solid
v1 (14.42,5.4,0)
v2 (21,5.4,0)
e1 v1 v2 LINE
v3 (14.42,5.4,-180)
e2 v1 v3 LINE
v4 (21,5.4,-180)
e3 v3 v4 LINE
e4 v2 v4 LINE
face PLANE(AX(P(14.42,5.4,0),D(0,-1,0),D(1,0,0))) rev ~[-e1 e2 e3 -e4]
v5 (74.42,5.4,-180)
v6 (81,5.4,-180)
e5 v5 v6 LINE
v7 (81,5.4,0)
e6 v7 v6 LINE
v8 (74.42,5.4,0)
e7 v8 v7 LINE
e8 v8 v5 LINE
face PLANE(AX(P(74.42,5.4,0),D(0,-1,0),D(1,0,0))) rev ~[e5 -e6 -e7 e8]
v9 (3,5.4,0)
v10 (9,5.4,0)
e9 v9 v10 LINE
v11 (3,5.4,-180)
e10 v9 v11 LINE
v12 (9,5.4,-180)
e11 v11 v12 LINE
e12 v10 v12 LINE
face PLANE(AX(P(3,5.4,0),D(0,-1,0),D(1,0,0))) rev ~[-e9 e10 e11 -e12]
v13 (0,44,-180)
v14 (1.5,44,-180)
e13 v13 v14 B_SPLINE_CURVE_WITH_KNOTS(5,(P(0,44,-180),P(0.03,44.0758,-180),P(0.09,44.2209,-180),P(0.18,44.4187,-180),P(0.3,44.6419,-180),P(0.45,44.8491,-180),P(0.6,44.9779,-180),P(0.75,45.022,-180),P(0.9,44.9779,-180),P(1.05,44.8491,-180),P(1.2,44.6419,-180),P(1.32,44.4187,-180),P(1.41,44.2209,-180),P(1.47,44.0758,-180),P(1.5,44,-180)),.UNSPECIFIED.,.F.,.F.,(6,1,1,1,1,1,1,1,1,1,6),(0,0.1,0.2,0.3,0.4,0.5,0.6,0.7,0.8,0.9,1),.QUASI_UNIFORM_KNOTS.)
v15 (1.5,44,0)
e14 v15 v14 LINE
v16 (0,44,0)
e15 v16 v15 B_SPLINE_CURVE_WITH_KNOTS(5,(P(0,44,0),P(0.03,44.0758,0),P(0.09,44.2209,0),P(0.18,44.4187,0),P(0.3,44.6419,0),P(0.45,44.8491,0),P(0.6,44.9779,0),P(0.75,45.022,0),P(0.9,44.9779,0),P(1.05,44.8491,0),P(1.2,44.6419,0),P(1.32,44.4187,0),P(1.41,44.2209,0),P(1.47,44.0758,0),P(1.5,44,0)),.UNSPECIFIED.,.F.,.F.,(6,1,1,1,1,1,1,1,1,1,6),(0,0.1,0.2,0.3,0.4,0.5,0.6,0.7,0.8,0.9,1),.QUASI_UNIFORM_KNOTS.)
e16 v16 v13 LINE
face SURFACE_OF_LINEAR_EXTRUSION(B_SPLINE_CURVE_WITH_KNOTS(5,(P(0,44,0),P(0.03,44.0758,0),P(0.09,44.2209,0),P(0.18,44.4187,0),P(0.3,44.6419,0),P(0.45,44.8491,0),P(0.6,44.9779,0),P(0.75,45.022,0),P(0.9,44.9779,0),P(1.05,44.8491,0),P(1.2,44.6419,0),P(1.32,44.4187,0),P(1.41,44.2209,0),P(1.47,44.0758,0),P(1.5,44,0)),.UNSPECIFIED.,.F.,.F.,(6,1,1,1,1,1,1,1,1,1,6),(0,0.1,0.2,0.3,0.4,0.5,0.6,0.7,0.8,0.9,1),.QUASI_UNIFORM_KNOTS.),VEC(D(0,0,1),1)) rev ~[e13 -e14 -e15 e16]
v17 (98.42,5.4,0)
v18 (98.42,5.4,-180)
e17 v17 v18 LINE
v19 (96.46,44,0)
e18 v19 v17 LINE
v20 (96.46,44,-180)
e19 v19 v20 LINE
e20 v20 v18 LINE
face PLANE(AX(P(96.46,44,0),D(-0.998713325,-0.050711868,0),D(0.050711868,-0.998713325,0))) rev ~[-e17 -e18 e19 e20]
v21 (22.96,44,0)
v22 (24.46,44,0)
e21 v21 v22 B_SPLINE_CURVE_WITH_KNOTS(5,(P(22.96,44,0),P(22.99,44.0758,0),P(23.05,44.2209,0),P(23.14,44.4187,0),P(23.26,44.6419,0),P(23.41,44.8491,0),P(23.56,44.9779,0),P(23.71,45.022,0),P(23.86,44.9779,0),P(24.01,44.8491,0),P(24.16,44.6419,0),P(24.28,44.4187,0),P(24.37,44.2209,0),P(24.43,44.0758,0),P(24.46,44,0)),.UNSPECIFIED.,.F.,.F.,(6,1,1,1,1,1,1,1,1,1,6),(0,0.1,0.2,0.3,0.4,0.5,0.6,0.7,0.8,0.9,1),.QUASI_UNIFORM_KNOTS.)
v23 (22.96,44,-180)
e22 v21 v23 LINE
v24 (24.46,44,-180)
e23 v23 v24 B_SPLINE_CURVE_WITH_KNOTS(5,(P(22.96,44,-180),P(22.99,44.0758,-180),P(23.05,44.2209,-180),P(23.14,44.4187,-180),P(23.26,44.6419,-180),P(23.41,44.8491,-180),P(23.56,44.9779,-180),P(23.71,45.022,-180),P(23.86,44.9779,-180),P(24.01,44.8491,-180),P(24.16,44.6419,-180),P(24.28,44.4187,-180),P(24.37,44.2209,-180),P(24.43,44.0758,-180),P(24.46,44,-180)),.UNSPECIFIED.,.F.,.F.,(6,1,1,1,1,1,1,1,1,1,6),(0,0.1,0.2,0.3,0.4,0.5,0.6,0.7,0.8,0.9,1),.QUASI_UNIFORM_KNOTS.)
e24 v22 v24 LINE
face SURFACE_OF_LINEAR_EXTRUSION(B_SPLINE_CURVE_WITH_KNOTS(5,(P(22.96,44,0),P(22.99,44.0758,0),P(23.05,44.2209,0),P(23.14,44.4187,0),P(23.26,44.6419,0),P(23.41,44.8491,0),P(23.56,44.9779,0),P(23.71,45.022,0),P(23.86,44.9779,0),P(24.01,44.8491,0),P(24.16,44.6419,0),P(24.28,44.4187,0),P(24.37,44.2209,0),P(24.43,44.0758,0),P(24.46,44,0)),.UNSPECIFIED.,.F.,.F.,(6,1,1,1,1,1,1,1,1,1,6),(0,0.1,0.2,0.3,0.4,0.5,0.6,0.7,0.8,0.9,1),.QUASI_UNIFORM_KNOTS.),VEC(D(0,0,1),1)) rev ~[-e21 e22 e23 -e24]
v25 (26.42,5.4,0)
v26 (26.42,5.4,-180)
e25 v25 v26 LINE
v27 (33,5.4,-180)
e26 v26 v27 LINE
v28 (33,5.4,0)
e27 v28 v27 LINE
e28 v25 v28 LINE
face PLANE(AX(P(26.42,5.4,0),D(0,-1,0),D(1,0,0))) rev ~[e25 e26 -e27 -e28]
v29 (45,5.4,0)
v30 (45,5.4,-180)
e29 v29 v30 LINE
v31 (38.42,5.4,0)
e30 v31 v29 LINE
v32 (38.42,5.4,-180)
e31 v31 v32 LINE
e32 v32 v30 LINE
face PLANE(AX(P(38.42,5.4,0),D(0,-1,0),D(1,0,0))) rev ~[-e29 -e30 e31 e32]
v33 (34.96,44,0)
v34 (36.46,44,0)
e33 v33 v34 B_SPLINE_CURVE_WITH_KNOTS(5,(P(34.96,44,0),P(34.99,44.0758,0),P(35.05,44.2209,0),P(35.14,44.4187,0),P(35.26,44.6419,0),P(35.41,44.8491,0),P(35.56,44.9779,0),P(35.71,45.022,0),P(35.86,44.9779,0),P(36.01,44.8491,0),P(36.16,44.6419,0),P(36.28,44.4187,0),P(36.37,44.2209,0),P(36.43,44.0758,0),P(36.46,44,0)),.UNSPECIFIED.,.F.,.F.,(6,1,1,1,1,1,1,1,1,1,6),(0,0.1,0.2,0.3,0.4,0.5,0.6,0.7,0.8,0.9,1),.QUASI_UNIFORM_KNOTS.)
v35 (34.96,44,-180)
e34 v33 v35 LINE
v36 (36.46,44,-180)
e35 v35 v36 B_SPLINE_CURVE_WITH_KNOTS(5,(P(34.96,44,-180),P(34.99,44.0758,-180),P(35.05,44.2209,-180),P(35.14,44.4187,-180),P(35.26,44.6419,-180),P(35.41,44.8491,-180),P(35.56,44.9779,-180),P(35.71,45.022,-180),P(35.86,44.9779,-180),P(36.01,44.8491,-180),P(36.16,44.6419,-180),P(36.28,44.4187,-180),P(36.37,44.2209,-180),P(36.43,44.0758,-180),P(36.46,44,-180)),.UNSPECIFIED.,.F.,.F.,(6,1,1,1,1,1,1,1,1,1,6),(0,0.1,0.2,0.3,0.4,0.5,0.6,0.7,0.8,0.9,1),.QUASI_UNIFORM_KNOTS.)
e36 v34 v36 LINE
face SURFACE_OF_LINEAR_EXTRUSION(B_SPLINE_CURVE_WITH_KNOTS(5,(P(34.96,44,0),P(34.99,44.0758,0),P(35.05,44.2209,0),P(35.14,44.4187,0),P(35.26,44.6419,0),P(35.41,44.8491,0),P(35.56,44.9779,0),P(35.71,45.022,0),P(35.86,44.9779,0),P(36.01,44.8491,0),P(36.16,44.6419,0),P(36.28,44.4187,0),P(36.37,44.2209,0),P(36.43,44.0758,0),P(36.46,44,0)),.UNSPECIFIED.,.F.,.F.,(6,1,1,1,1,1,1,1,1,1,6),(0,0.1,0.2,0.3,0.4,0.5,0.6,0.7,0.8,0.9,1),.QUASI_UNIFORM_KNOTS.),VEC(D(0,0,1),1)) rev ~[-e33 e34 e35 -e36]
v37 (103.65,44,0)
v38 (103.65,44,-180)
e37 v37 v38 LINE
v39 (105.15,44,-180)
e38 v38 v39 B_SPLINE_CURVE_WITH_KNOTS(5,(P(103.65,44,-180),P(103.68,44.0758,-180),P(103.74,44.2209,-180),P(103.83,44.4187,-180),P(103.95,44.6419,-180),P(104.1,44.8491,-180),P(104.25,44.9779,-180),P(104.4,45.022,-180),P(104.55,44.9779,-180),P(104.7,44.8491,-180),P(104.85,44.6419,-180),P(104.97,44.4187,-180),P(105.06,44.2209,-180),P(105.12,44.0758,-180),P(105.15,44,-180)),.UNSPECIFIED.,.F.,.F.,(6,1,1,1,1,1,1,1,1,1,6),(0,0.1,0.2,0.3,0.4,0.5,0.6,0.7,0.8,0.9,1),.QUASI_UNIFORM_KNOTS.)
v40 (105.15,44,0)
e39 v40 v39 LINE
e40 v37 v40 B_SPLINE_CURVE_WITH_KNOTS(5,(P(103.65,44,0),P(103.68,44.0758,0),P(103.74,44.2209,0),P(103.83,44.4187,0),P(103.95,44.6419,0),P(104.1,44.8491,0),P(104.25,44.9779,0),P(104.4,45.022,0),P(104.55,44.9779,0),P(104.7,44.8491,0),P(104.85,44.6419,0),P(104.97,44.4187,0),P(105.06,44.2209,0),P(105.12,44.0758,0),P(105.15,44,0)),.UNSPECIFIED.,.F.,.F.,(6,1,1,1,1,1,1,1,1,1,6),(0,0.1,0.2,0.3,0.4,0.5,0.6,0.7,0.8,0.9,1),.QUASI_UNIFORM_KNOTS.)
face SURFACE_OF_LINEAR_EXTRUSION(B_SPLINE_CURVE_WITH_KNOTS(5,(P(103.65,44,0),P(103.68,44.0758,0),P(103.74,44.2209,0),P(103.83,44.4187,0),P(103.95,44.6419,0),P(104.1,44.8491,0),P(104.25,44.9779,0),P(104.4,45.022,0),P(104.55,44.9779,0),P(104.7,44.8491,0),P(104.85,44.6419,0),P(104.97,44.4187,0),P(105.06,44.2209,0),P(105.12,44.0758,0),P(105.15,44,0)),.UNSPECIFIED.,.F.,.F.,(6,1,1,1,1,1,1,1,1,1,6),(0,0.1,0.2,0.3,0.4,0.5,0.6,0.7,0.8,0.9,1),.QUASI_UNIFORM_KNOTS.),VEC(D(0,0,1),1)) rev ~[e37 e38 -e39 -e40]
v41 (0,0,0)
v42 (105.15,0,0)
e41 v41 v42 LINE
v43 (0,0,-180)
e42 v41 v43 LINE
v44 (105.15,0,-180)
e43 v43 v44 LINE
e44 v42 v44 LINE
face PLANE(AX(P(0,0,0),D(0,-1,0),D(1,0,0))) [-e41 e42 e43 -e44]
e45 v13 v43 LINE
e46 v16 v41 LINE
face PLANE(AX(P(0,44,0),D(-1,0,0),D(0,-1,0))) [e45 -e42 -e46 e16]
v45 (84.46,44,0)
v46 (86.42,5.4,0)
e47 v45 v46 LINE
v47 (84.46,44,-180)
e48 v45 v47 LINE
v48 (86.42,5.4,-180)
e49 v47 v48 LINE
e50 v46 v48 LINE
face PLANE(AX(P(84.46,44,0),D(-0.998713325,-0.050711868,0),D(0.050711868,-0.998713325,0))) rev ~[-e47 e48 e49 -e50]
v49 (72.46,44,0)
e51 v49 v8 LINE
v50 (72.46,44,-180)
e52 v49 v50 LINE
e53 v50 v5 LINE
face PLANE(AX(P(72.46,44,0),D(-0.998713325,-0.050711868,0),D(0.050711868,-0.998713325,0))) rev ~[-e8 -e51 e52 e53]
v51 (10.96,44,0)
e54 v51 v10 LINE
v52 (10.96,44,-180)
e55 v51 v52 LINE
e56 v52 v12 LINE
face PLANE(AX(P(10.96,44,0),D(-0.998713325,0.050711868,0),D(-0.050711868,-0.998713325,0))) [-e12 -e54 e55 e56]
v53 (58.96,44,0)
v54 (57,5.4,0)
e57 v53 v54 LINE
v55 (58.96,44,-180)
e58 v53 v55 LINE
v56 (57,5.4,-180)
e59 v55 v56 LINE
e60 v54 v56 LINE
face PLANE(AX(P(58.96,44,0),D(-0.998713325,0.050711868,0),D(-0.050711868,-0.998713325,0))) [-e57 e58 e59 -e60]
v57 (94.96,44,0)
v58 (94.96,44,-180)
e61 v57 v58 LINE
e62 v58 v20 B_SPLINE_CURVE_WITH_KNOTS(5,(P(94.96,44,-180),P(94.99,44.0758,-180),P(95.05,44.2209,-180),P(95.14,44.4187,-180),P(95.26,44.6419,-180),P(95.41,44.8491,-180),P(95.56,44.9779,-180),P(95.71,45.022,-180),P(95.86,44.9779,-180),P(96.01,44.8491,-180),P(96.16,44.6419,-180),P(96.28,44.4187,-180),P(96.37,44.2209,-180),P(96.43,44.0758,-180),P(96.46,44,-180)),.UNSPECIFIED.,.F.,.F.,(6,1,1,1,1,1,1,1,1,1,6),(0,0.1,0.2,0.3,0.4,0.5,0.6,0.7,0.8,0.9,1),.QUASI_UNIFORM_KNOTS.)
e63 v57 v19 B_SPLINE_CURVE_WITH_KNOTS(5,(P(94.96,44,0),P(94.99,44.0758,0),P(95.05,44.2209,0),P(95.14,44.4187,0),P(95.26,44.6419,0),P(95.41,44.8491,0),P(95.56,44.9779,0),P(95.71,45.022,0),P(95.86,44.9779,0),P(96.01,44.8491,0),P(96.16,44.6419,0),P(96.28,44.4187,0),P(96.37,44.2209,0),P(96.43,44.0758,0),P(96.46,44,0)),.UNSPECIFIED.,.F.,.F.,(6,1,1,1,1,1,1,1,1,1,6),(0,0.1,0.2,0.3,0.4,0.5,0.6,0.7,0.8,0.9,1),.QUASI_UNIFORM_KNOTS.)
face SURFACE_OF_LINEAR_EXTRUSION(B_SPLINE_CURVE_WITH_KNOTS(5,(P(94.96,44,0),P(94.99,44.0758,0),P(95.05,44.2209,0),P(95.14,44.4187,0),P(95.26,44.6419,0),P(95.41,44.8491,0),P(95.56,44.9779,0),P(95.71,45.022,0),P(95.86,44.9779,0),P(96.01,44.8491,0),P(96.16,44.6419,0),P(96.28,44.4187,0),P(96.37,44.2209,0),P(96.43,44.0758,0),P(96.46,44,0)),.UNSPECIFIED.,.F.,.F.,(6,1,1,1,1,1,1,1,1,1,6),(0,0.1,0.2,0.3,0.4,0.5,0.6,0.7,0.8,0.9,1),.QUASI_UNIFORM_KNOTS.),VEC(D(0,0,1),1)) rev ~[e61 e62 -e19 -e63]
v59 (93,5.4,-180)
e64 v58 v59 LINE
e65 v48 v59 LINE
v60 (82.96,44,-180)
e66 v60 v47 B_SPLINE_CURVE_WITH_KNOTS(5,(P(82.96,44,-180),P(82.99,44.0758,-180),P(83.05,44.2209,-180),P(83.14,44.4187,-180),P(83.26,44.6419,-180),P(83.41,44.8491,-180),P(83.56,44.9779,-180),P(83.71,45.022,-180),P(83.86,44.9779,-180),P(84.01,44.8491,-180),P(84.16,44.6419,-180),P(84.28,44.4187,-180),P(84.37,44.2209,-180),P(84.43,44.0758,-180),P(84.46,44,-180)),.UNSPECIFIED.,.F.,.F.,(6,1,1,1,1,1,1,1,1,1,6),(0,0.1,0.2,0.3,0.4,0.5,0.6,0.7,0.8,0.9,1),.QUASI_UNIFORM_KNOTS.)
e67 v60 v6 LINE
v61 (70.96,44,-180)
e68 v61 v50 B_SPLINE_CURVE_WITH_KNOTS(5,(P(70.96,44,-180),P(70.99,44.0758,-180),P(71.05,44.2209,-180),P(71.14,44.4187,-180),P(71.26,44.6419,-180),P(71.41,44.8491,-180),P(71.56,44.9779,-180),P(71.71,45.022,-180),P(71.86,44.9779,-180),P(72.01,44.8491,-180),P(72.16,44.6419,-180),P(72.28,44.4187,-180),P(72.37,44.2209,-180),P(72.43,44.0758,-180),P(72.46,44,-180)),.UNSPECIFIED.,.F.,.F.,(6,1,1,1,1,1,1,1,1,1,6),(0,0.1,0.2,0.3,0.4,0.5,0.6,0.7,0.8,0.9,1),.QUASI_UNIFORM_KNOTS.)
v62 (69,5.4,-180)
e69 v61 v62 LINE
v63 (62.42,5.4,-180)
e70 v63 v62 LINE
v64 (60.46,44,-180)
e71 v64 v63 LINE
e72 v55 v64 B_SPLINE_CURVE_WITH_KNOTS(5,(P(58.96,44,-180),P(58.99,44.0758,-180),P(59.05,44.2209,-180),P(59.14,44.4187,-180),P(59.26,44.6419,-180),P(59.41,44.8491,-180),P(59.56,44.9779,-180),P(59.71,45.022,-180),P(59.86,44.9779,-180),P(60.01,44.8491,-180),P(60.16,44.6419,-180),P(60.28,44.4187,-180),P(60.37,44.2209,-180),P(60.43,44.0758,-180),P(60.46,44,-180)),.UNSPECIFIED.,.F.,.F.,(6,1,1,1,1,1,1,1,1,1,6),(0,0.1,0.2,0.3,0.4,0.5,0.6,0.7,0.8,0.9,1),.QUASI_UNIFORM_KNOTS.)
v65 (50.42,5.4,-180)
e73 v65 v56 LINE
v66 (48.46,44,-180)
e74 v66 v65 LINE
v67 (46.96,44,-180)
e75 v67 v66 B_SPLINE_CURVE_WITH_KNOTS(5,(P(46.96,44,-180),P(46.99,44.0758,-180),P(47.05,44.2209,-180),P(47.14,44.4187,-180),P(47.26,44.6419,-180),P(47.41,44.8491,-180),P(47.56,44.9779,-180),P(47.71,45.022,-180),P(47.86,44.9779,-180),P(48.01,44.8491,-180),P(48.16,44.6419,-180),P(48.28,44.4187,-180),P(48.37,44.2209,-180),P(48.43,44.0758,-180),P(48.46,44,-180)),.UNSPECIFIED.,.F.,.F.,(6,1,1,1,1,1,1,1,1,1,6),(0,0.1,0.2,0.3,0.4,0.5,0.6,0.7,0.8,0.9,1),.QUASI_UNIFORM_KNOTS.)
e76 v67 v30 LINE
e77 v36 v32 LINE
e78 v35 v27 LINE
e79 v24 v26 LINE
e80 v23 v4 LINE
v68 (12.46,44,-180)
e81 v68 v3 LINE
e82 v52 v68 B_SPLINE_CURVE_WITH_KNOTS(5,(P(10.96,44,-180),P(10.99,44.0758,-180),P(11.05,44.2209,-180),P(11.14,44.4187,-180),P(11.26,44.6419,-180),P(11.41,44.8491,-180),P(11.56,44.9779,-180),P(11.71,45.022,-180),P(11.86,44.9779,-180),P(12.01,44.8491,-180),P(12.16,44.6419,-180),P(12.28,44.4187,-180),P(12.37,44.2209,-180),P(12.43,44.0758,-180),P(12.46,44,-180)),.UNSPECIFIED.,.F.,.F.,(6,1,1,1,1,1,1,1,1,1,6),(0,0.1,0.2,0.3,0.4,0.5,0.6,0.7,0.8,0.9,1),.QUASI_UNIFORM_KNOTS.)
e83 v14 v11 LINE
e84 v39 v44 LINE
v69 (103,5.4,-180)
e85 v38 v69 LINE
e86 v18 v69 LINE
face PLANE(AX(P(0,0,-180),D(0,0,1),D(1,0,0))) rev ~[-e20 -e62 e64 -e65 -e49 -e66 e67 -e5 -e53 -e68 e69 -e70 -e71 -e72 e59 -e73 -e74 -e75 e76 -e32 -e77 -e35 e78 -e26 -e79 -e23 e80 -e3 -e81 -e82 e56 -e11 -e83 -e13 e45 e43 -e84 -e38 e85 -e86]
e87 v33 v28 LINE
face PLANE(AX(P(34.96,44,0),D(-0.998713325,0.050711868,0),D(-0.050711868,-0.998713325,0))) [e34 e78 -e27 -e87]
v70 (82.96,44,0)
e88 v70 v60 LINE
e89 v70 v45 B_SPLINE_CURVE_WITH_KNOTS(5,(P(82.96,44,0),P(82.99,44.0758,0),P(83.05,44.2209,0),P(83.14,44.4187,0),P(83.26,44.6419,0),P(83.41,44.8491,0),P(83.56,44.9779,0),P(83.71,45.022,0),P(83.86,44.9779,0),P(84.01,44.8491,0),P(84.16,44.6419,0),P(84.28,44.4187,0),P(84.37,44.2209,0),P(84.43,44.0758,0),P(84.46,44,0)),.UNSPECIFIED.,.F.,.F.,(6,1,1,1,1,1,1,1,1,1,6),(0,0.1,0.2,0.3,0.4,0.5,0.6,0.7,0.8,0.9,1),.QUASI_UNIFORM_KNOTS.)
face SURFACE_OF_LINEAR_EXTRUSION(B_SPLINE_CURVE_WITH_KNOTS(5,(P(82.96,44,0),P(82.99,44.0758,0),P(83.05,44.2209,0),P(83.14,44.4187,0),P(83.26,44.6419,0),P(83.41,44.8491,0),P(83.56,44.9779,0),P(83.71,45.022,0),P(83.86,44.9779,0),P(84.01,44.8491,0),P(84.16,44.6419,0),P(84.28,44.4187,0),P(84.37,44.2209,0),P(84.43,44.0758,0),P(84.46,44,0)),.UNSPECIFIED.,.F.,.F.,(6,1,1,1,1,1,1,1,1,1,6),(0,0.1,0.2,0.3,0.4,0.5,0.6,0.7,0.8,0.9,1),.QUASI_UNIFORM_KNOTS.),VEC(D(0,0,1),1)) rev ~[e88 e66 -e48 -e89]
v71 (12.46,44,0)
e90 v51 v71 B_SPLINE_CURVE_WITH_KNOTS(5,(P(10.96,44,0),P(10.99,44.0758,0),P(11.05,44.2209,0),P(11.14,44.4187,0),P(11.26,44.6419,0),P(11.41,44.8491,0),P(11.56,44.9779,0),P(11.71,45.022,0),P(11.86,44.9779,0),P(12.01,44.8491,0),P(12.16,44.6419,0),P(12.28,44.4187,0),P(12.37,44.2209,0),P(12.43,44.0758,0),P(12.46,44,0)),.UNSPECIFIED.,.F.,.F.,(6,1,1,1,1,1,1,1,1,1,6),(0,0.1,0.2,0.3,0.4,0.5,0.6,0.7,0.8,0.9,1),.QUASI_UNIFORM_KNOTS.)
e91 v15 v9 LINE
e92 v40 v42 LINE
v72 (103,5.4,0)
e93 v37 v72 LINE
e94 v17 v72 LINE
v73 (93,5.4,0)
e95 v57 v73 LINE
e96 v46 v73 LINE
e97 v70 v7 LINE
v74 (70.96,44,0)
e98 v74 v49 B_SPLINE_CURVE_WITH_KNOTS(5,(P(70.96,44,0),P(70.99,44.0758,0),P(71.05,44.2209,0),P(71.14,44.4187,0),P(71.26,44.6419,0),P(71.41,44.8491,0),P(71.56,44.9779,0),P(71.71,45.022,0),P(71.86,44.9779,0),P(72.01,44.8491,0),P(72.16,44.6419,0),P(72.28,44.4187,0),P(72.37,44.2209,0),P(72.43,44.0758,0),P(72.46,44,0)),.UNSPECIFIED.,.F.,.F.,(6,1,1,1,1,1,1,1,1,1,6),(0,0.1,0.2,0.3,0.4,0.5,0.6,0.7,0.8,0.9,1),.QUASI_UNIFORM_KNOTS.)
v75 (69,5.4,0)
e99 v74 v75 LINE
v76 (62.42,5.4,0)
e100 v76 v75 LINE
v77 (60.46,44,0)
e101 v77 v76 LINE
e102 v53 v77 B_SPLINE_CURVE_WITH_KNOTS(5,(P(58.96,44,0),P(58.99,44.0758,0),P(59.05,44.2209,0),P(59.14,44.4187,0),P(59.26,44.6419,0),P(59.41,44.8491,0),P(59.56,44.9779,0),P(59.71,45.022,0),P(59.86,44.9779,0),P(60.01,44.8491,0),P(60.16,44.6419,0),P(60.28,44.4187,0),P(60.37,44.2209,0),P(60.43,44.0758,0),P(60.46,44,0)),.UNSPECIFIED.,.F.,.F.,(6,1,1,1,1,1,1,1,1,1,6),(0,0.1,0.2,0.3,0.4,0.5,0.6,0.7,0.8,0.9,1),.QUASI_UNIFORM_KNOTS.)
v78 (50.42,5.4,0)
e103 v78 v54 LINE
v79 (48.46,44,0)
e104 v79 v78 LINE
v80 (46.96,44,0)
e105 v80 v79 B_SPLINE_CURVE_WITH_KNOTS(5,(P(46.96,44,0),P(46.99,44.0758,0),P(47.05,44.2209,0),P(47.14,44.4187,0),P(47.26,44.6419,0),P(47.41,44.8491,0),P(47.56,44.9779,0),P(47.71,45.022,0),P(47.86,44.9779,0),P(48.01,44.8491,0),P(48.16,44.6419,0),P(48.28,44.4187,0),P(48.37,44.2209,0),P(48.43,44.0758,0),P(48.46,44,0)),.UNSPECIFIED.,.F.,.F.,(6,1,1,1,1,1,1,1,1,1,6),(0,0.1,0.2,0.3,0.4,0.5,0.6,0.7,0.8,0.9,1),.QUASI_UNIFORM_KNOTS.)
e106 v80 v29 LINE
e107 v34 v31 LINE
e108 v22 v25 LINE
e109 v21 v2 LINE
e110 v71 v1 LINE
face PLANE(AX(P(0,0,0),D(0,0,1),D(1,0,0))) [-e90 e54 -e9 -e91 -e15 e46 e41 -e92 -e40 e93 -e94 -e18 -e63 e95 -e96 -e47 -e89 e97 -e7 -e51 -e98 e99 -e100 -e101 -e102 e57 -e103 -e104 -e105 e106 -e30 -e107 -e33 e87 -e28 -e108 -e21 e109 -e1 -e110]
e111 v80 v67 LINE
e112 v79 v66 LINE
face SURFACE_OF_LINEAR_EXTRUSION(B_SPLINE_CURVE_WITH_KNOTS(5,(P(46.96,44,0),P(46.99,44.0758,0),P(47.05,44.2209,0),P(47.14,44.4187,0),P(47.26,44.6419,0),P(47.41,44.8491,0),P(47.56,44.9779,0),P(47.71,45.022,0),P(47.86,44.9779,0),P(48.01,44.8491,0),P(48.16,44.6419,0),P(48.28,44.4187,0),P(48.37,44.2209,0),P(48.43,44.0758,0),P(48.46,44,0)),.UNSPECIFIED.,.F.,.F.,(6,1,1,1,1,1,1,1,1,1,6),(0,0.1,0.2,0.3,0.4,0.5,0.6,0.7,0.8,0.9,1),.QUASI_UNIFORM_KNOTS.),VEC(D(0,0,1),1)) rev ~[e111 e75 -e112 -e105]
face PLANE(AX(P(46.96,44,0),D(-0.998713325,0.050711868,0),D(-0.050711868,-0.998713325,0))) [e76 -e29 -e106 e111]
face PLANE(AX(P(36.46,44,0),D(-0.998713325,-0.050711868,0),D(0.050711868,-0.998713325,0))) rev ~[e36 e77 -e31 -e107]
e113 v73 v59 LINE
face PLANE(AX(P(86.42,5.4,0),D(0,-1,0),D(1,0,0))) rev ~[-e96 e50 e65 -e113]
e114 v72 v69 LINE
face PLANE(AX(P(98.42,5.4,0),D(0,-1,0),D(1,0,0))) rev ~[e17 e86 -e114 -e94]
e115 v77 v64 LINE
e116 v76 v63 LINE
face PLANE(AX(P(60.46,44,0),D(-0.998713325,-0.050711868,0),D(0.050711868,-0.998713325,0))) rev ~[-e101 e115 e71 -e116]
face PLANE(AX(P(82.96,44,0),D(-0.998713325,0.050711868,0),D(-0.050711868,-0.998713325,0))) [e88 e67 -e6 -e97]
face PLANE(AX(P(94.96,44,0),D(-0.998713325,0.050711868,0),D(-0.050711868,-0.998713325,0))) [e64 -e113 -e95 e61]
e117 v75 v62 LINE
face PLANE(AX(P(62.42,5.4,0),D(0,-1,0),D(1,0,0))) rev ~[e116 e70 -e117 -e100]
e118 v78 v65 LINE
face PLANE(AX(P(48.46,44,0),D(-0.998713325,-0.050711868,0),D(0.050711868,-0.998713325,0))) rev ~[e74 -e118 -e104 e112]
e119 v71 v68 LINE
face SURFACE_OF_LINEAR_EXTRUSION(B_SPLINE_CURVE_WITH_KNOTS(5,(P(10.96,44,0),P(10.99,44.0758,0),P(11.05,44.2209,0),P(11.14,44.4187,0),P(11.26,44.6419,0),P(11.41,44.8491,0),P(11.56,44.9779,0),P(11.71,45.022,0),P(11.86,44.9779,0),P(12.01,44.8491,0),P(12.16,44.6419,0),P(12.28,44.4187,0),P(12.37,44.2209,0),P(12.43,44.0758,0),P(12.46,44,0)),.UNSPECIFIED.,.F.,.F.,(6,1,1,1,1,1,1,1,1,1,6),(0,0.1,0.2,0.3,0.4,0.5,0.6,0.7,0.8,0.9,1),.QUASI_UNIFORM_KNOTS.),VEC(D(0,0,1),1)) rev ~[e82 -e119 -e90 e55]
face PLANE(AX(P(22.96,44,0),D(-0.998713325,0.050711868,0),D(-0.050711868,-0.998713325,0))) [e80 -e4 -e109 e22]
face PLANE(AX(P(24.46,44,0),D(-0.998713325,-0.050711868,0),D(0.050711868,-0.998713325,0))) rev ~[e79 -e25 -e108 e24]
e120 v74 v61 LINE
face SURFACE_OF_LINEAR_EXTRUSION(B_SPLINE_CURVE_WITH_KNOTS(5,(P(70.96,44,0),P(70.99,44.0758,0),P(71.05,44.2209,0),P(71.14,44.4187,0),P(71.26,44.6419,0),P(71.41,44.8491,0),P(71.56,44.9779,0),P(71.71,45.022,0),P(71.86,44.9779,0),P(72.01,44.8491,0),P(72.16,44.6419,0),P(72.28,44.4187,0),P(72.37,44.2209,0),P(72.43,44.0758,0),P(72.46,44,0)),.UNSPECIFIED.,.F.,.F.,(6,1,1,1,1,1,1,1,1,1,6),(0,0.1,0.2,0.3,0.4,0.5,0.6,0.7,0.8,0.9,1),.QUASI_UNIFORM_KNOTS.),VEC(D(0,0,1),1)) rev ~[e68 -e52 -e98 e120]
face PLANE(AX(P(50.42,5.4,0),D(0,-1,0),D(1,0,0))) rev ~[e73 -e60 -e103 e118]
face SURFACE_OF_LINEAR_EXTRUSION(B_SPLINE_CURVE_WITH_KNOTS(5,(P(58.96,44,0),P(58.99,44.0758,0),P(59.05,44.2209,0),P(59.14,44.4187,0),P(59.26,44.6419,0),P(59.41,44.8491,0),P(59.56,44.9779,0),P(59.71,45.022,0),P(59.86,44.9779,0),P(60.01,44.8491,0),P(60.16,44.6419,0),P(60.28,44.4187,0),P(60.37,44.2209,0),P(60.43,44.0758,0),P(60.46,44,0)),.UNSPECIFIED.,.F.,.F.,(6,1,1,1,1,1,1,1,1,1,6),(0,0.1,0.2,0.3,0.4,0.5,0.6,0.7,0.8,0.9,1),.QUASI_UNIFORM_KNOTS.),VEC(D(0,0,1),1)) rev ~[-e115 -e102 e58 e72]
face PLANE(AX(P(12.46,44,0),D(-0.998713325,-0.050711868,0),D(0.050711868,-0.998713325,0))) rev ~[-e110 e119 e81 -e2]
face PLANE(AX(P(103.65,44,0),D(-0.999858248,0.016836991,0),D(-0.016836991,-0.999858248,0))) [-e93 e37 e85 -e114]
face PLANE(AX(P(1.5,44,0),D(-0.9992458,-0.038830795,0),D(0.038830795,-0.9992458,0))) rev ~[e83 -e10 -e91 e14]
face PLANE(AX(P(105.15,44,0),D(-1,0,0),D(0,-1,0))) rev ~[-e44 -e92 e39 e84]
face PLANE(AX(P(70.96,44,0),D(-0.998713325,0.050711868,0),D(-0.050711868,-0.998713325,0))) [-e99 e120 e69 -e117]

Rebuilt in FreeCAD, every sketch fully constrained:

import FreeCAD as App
import Part
import Sketcher
from FreeCAD import Vector

doc = App.newDocument("Part")
params = doc.addObject("Spreadsheet::Sheet", "Params")
for row, (alias, value) in enumerate([
    ("sketch1_width", "6 mm"),
    ("sketch1_width2", "4.58 mm"),
    ("pad1_length", "180 mm"),
], start=1):
    params.set(f"A{row}", alias)
    params.set(f"B{row}", "=" + value)
    params.setAlias(f"B{row}", alias)

body = doc.addObject("PartDesign::Body", "Body")

# Sketch on XY plane
sketch1 = doc.addObject("Sketcher::SketchObject", "Sketch")
body.addObject(sketch1)
sketch1.AttachmentSupport = (doc.XY_Plane, [""])
sketch1.MapMode = "FlatFace"
sketch1.addGeometry(Part.LineSegment(Vector(0, 44, 0), Vector(0, 0, 0)), False)
sketch1.addGeometry(Part.LineSegment(Vector(0, 0, 0), Vector(105.15, 0, 0)), False)
sketch1.addGeometry(Part.LineSegment(Vector(105.15, 0, 0), Vector(105.15, 44, 0)), False)
sketch1.addGeometry(Part.BSplineCurve([Vector(103.65, 44, 0), Vector(103.68, 44.0758, 0), Vector(103.74, 44.2209, 0), Vector(103.83, 44.4187, 0), Vector(103.95, 44.6419, 0), Vector(104.1, 44.8491, 0), Vector(104.25, 44.9779, 0), Vector(104.4, 45.022, 0), Vector(104.55, 44.9779, 0), Vector(104.7, 44.8491, 0), Vector(104.85, 44.6419, 0), Vector(104.97, 44.4187, 0), Vector(105.06, 44.2209, 0), Vector(105.12, 44.0758, 0), Vector(105.15, 44, 0)], [6, 1, 1, 1, 1, 1, 1, 1, 1, 1, 6], [0, 0.1, 0.2, 0.3, 0.4, 0.5, 0.6, 0.7, 0.8, 0.9, 1], False, 5, [1, 1, 1, 1, 1, 1, 1, 1, 1, 1, 1, 1, 1, 1, 1], False), False)
sketch1.addGeometry(Part.LineSegment(Vector(103.65, 44, 0), Vector(103, 5.4, 0)), False)
sketch1.addGeometry(Part.LineSegment(Vector(103, 5.4, 0), Vector(98.42, 5.4, 0)), False)
sketch1.addGeometry(Part.LineSegment(Vector(98.42, 5.4, 0), Vector(96.46, 44, 0)), False)
sketch1.addGeometry(Part.BSplineCurve([Vector(94.96, 44, 0), Vector(94.99, 44.0758, 0), Vector(95.05, 44.2209, 0), Vector(95.14, 44.4187, 0), Vector(95.26, 44.6419, 0), Vector(95.41, 44.8491, 0), Vector(95.56, 44.9779, 0), Vector(95.71, 45.022, 0), Vector(95.86, 44.9779, 0), Vector(96.01, 44.8491, 0), Vector(96.16, 44.6419, 0), Vector(96.28, 44.4187, 0), Vector(96.37, 44.2209, 0), Vector(96.43, 44.0758, 0), Vector(96.46, 44, 0)], [6, 1, 1, 1, 1, 1, 1, 1, 1, 1, 6], [0, 0.1, 0.2, 0.3, 0.4, 0.5, 0.6, 0.7, 0.8, 0.9, 1], False, 5, [1, 1, 1, 1, 1, 1, 1, 1, 1, 1, 1, 1, 1, 1, 1], False), False)
sketch1.addGeometry(Part.LineSegment(Vector(94.96, 44, 0), Vector(93, 5.4, 0)), False)
sketch1.addGeometry(Part.LineSegment(Vector(93, 5.4, 0), Vector(86.42, 5.4, 0)), False)
sketch1.addGeometry(Part.LineSegment(Vector(86.42, 5.4, 0), Vector(84.46, 44, 0)), False)
sketch1.addGeometry(Part.BSplineCurve([Vector(82.96, 44, 0), Vector(82.99, 44.0758, 0), Vector(83.05, 44.2209, 0), Vector(83.14, 44.4187, 0), Vector(83.26, 44.6419, 0), Vector(83.41, 44.8491, 0), Vector(83.56, 44.9779, 0), Vector(83.71, 45.022, 0), Vector(83.86, 44.9779, 0), Vector(84.01, 44.8491, 0), Vector(84.16, 44.6419, 0), Vector(84.28, 44.4187, 0), Vector(84.37, 44.2209, 0), Vector(84.43, 44.0758, 0), Vector(84.46, 44, 0)], [6, 1, 1, 1, 1, 1, 1, 1, 1, 1, 6], [0, 0.1, 0.2, 0.3, 0.4, 0.5, 0.6, 0.7, 0.8, 0.9, 1], False, 5, [1, 1, 1, 1, 1, 1, 1, 1, 1, 1, 1, 1, 1, 1, 1], False), False)
sketch1.addGeometry(Part.LineSegment(Vector(82.96, 44, 0), Vector(81, 5.4, 0)), False)
sketch1.addGeometry(Part.LineSegment(Vector(81, 5.4, 0), Vector(74.42, 5.4, 0)), False)
sketch1.addGeometry(Part.LineSegment(Vector(74.42, 5.4, 0), Vector(72.46, 44, 0)), False)
sketch1.addGeometry(Part.BSplineCurve([Vector(70.96, 44, 0), Vector(70.99, 44.0758, 0), Vector(71.05, 44.2209, 0), Vector(71.14, 44.4187, 0), Vector(71.26, 44.6419, 0), Vector(71.41, 44.8491, 0), Vector(71.56, 44.9779, 0), Vector(71.71, 45.022, 0), Vector(71.86, 44.9779, 0), Vector(72.01, 44.8491, 0), Vector(72.16, 44.6419, 0), Vector(72.28, 44.4187, 0), Vector(72.37, 44.2209, 0), Vector(72.43, 44.0758, 0), Vector(72.46, 44, 0)], [6, 1, 1, 1, 1, 1, 1, 1, 1, 1, 6], [0, 0.1, 0.2, 0.3, 0.4, 0.5, 0.6, 0.7, 0.8, 0.9, 1], False, 5, [1, 1, 1, 1, 1, 1, 1, 1, 1, 1, 1, 1, 1, 1, 1], False), False)
sketch1.addGeometry(Part.LineSegment(Vector(70.96, 44, 0), Vector(69, 5.4, 0)), False)
sketch1.addGeometry(Part.LineSegment(Vector(69, 5.4, 0), Vector(62.42, 5.4, 0)), False)
sketch1.addGeometry(Part.LineSegment(Vector(62.42, 5.4, 0), Vector(60.46, 44, 0)), False)
sketch1.addGeometry(Part.BSplineCurve([Vector(58.96, 44, 0), Vector(58.99, 44.0758, 0), Vector(59.05, 44.2209, 0), Vector(59.14, 44.4187, 0), Vector(59.26, 44.6419, 0), Vector(59.41, 44.8491, 0), Vector(59.56, 44.9779, 0), Vector(59.71, 45.022, 0), Vector(59.86, 44.9779, 0), Vector(60.01, 44.8491, 0), Vector(60.16, 44.6419, 0), Vector(60.28, 44.4187, 0), Vector(60.37, 44.2209, 0), Vector(60.43, 44.0758, 0), Vector(60.46, 44, 0)], [6, 1, 1, 1, 1, 1, 1, 1, 1, 1, 6], [0, 0.1, 0.2, 0.3, 0.4, 0.5, 0.6, 0.7, 0.8, 0.9, 1], False, 5, [1, 1, 1, 1, 1, 1, 1, 1, 1, 1, 1, 1, 1, 1, 1], False), False)
sketch1.addGeometry(Part.LineSegment(Vector(58.96, 44, 0), Vector(57, 5.4, 0)), False)
sketch1.addGeometry(Part.LineSegment(Vector(57, 5.4, 0), Vector(50.42, 5.4, 0)), False)
sketch1.addGeometry(Part.LineSegment(Vector(50.42, 5.4, 0), Vector(48.46, 44, 0)), False)
sketch1.addGeometry(Part.BSplineCurve([Vector(46.96, 44, 0), Vector(46.99, 44.0758, 0), Vector(47.05, 44.2209, 0), Vector(47.14, 44.4187, 0), Vector(47.26, 44.6419, 0), Vector(47.41, 44.8491, 0), Vector(47.56, 44.9779, 0), Vector(47.71, 45.022, 0), Vector(47.86, 44.9779, 0), Vector(48.01, 44.8491, 0), Vector(48.16, 44.6419, 0), Vector(48.28, 44.4187, 0), Vector(48.37, 44.2209, 0), Vector(48.43, 44.0758, 0), Vector(48.46, 44, 0)], [6, 1, 1, 1, 1, 1, 1, 1, 1, 1, 6], [0, 0.1, 0.2, 0.3, 0.4, 0.5, 0.6, 0.7, 0.8, 0.9, 1], False, 5, [1, 1, 1, 1, 1, 1, 1, 1, 1, 1, 1, 1, 1, 1, 1], False), False)
sketch1.addGeometry(Part.LineSegment(Vector(46.96, 44, 0), Vector(45, 5.4, 0)), False)
sketch1.addGeometry(Part.LineSegment(Vector(45, 5.4, 0), Vector(38.42, 5.4, 0)), False)
sketch1.addGeometry(Part.LineSegment(Vector(38.42, 5.4, 0), Vector(36.46, 44, 0)), False)
sketch1.addGeometry(Part.BSplineCurve([Vector(34.96, 44, 0), Vector(34.99, 44.0758, 0), Vector(35.05, 44.2209, 0), Vector(35.14, 44.4187, 0), Vector(35.26, 44.6419, 0), Vector(35.41, 44.8491, 0), Vector(35.56, 44.9779, 0), Vector(35.71, 45.022, 0), Vector(35.86, 44.9779, 0), Vector(36.01, 44.8491, 0), Vector(36.16, 44.6419, 0), Vector(36.28, 44.4187, 0), Vector(36.37, 44.2209, 0), Vector(36.43, 44.0758, 0), Vector(36.46, 44, 0)], [6, 1, 1, 1, 1, 1, 1, 1, 1, 1, 6], [0, 0.1, 0.2, 0.3, 0.4, 0.5, 0.6, 0.7, 0.8, 0.9, 1], False, 5, [1, 1, 1, 1, 1, 1, 1, 1, 1, 1, 1, 1, 1, 1, 1], False), False)
sketch1.addGeometry(Part.LineSegment(Vector(34.96, 44, 0), Vector(33, 5.4, 0)), False)
sketch1.addGeometry(Part.LineSegment(Vector(33, 5.4, 0), Vector(26.42, 5.4, 0)), False)
sketch1.addGeometry(Part.LineSegment(Vector(26.42, 5.4, 0), Vector(24.46, 44, 0)), False)
sketch1.addGeometry(Part.BSplineCurve([Vector(22.96, 44, 0), Vector(22.99, 44.0758, 0), Vector(23.05, 44.2209, 0), Vector(23.14, 44.4187, 0), Vector(23.26, 44.6419, 0), Vector(23.41, 44.8491, 0), Vector(23.56, 44.9779, 0), Vector(23.71, 45.022, 0), Vector(23.86, 44.9779, 0), Vector(24.01, 44.8491, 0), Vector(24.16, 44.6419, 0), Vector(24.28, 44.4187, 0), Vector(24.37, 44.2209, 0), Vector(24.43, 44.0758, 0), Vector(24.46, 44, 0)], [6, 1, 1, 1, 1, 1, 1, 1, 1, 1, 6], [0, 0.1, 0.2, 0.3, 0.4, 0.5, 0.6, 0.7, 0.8, 0.9, 1], False, 5, [1, 1, 1, 1, 1, 1, 1, 1, 1, 1, 1, 1, 1, 1, 1], False), False)
sketch1.addGeometry(Part.LineSegment(Vector(22.96, 44, 0), Vector(21, 5.4, 0)), False)
sketch1.addGeometry(Part.LineSegment(Vector(21, 5.4, 0), Vector(14.42, 5.4, 0)), False)
sketch1.addGeometry(Part.LineSegment(Vector(14.42, 5.4, 0), Vector(12.46, 44, 0)), False)
sketch1.addGeometry(Part.BSplineCurve([Vector(10.96, 44, 0), Vector(10.99, 44.0758, 0), Vector(11.05, 44.2209, 0), Vector(11.14, 44.4187, 0), Vector(11.26, 44.6419, 0), Vector(11.41, 44.8491, 0), Vector(11.56, 44.9779, 0), Vector(11.71, 45.022, 0), Vector(11.86, 44.9779, 0), Vector(12.01, 44.8491, 0), Vector(12.16, 44.6419, 0), Vector(12.28, 44.4187, 0), Vector(12.37, 44.2209, 0), Vector(12.43, 44.0758, 0), Vector(12.46, 44, 0)], [6, 1, 1, 1, 1, 1, 1, 1, 1, 1, 6], [0, 0.1, 0.2, 0.3, 0.4, 0.5, 0.6, 0.7, 0.8, 0.9, 1], False, 5, [1, 1, 1, 1, 1, 1, 1, 1, 1, 1, 1, 1, 1, 1, 1], False), False)
sketch1.addGeometry(Part.LineSegment(Vector(10.96, 44, 0), Vector(9, 5.4, 0)), False)
sketch1.addGeometry(Part.LineSegment(Vector(9, 5.4, 0), Vector(3, 5.4, 0)), False)
sketch1.addGeometry(Part.LineSegment(Vector(3, 5.4, 0), Vector(1.5, 44, 0)), False)
sketch1.addGeometry(Part.BSplineCurve([Vector(0, 44, 0), Vector(0.03, 44.0758, 0), Vector(0.09, 44.2209, 0), Vector(0.18, 44.4187, 0), Vector(0.3, 44.6419, 0), Vector(0.45, 44.8491, 0), Vector(0.6, 44.9779, 0), Vector(0.75, 45.022, 0), Vector(0.9, 44.9779, 0), Vector(1.05, 44.8491, 0), Vector(1.2, 44.6419, 0), Vector(1.32, 44.4187, 0), Vector(1.41, 44.2209, 0), Vector(1.47, 44.0758, 0), Vector(1.5, 44, 0)], [6, 1, 1, 1, 1, 1, 1, 1, 1, 1, 6], [0, 0.1, 0.2, 0.3, 0.4, 0.5, 0.6, 0.7, 0.8, 0.9, 1], False, 5, [1, 1, 1, 1, 1, 1, 1, 1, 1, 1, 1, 1, 1, 1, 1], False), False)
sketch1.addConstraint(Sketcher.Constraint("Block", 3))
sketch1.addConstraint(Sketcher.Constraint("Block", 7))
sketch1.addConstraint(Sketcher.Constraint("Block", 11))
sketch1.addConstraint(Sketcher.Constraint("Block", 15))
sketch1.addConstraint(Sketcher.Constraint("Block", 19))
sketch1.addConstraint(Sketcher.Constraint("Block", 23))
sketch1.addConstraint(Sketcher.Constraint("Block", 27))
sketch1.addConstraint(Sketcher.Constraint("Block", 31))
sketch1.addConstraint(Sketcher.Constraint("Block", 35))
sketch1.addConstraint(Sketcher.Constraint("Block", 39))
sketch1.addConstraint(Sketcher.Constraint("Coincident", 0, 2, 1, 1))
sketch1.addConstraint(Sketcher.Constraint("Coincident", 1, 2, 2, 1))
sketch1.addConstraint(Sketcher.Constraint("Coincident", 2, 2, 3, 2))
sketch1.addConstraint(Sketcher.Constraint("Coincident", 3, 1, 4, 1))
sketch1.addConstraint(Sketcher.Constraint("Coincident", 4, 2, 5, 1))
sketch1.addConstraint(Sketcher.Constraint("Coincident", 5, 2, 6, 1))
sketch1.addConstraint(Sketcher.Constraint("Coincident", 6, 2, 7, 2))
sketch1.addConstraint(Sketcher.Constraint("Coincident", 7, 1, 8, 1))
sketch1.addConstraint(Sketcher.Constraint("Coincident", 8, 2, 9, 1))
sketch1.addConstraint(Sketcher.Constraint("Coincident", 9, 2, 10, 1))
sketch1.addConstraint(Sketcher.Constraint("Coincident", 10, 2, 11, 2))
sketch1.addConstraint(Sketcher.Constraint("Coincident", 11, 1, 12, 1))
sketch1.addConstraint(Sketcher.Constraint("Coincident", 12, 2, 13, 1))
sketch1.addConstraint(Sketcher.Constraint("Coincident", 13, 2, 14, 1))
sketch1.addConstraint(Sketcher.Constraint("Coincident", 14, 2, 15, 2))
sketch1.addConstraint(Sketcher.Constraint("Coincident", 15, 1, 16, 1))
sketch1.addConstraint(Sketcher.Constraint("Coincident", 16, 2, 17, 1))
sketch1.addConstraint(Sketcher.Constraint("Coincident", 17, 2, 18, 1))
sketch1.addConstraint(Sketcher.Constraint("Coincident", 18, 2, 19, 2))
sketch1.addConstraint(Sketcher.Constraint("Coincident", 19, 1, 20, 1))
sketch1.addConstraint(Sketcher.Constraint("Coincident", 20, 2, 21, 1))
sketch1.addConstraint(Sketcher.Constraint("Coincident", 21, 2, 22, 1))
sketch1.addConstraint(Sketcher.Constraint("Coincident", 22, 2, 23, 2))
sketch1.addConstraint(Sketcher.Constraint("Coincident", 23, 1, 24, 1))
sketch1.addConstraint(Sketcher.Constraint("Coincident", 24, 2, 25, 1))
sketch1.addConstraint(Sketcher.Constraint("Coincident", 25, 2, 26, 1))
sketch1.addConstraint(Sketcher.Constraint("Coincident", 26, 2, 27, 2))
sketch1.addConstraint(Sketcher.Constraint("Coincident", 27, 1, 28, 1))
sketch1.addConstraint(Sketcher.Constraint("Coincident", 28, 2, 29, 1))
sketch1.addConstraint(Sketcher.Constraint("Coincident", 29, 2, 30, 1))
sketch1.addConstraint(Sketcher.Constraint("Coincident", 30, 2, 31, 2))
sketch1.addConstraint(Sketcher.Constraint("Coincident", 31, 1, 32, 1))
sketch1.addConstraint(Sketcher.Constraint("Coincident", 32, 2, 33, 1))
sketch1.addConstraint(Sketcher.Constraint("Coincident", 33, 2, 34, 1))
sketch1.addConstraint(Sketcher.Constraint("Coincident", 34, 2, 35, 2))
sketch1.addConstraint(Sketcher.Constraint("Coincident", 35, 1, 36, 1))
sketch1.addConstraint(Sketcher.Constraint("Coincident", 36, 2, 37, 1))
sketch1.addConstraint(Sketcher.Constraint("Coincident", 37, 2, 38, 1))
sketch1.addConstraint(Sketcher.Constraint("Coincident", 38, 2, 39, 2))
sketch1.addConstraint(Sketcher.Constraint("Coincident", 39, 1, 0, 1))
sketch1.addConstraint(Sketcher.Constraint("Vertical", 0))
sketch1.addConstraint(Sketcher.Constraint("Horizontal", 1))
sketch1.addConstraint(Sketcher.Constraint("Vertical", 2))
sketch1.addConstraint(Sketcher.Constraint("Horizontal", 5))
sketch1.addConstraint(Sketcher.Constraint("Horizontal", 9))
sketch1.addConstraint(Sketcher.Constraint("Horizontal", 13))
sketch1.addConstraint(Sketcher.Constraint("Horizontal", 17))
sketch1.addConstraint(Sketcher.Constraint("Horizontal", 21))
sketch1.addConstraint(Sketcher.Constraint("Horizontal", 25))
sketch1.addConstraint(Sketcher.Constraint("Horizontal", 29))
sketch1.addConstraint(Sketcher.Constraint("Horizontal", 33))
sketch1.addConstraint(Sketcher.Constraint("Horizontal", 37))
sketch1.addConstraint(Sketcher.Constraint("PointOnObject", 1, 2, -1))
sketch1.addConstraint(Sketcher.Constraint("DistanceX", 37, 2, 37, 1, 6.0))
sketch1.addConstraint(Sketcher.Constraint("DistanceX", -1, 1, 4, 2, 103.0))
sketch1.addConstraint(Sketcher.Constraint("DistanceX", -1, 1, 8, 2, 93.0))
sketch1.addConstraint(Sketcher.Constraint("DistanceX", -1, 1, 12, 2, 81.0))
sketch1.addConstraint(Sketcher.Constraint("DistanceX", -1, 1, 16, 2, 69.0))
sketch1.addConstraint(Sketcher.Constraint("DistanceX", -1, 1, 20, 2, 57.0))
sketch1.addConstraint(Sketcher.Constraint("DistanceX", -1, 1, 24, 2, 45.0))
sketch1.addConstraint(Sketcher.Constraint("DistanceX", -1, 1, 28, 2, 33.0))
sketch1.addConstraint(Sketcher.Constraint("DistanceX", -1, 1, 32, 2, 21.0))
sketch1.addConstraint(Sketcher.Constraint("DistanceX", -1, 1, 36, 2, 9.0))
sketch1.addConstraint(Sketcher.Constraint("DistanceX", 9, 2, 5, 2, 12.0))
sketch1.addConstraint(Sketcher.Constraint("DistanceX", 13, 2, 9, 2, 12.0))
sketch1.addConstraint(Sketcher.Constraint("DistanceX", 17, 2, 13, 2, 12.0))
sketch1.addConstraint(Sketcher.Constraint("DistanceX", 21, 2, 17, 2, 12.0))
sketch1.addConstraint(Sketcher.Constraint("DistanceX", 25, 2, 21, 2, 12.0))
sketch1.addConstraint(Sketcher.Constraint("DistanceX", 29, 2, 25, 2, 12.0))
sketch1.addConstraint(Sketcher.Constraint("DistanceX", 33, 2, 29, 2, 12.0))
sketch1.addConstraint(Sketcher.Constraint("DistanceX", 5, 2, 5, 1, 4.58))
sketch1.addConstraint(Sketcher.Constraint("DistanceY", -1, 1, 4, 2, 5.4))
sketch1.addConstraint(Sketcher.Constraint("DistanceY", -1, 1, 8, 2, 5.4))
sketch1.addConstraint(Sketcher.Constraint("DistanceY", -1, 1, 12, 2, 5.4))
sketch1.addConstraint(Sketcher.Constraint("DistanceY", -1, 1, 16, 2, 5.4))
sketch1.addConstraint(Sketcher.Constraint("DistanceY", -1, 1, 20, 2, 5.4))
sketch1.addConstraint(Sketcher.Constraint("DistanceY", -1, 1, 24, 2, 5.4))
sketch1.addConstraint(Sketcher.Constraint("DistanceY", -1, 1, 28, 2, 5.4))
sketch1.addConstraint(Sketcher.Constraint("DistanceY", -1, 1, 32, 2, 5.4))
sketch1.addConstraint(Sketcher.Constraint("DistanceY", -1, 1, 36, 2, 5.4))
sketch1.setExpression("Constraints[63]", "Params.sketch1_width")
sketch1.setExpression("Constraints[80]", "Params.sketch1_width2")
pad1 = doc.addObject("PartDesign::Pad", "Pad")
body.addObject(pad1)
pad1.Profile = sketch1
pad1.setExpression("Length", "Params.pad1_length")
pad1.Reversed = True

doc.recompute()
